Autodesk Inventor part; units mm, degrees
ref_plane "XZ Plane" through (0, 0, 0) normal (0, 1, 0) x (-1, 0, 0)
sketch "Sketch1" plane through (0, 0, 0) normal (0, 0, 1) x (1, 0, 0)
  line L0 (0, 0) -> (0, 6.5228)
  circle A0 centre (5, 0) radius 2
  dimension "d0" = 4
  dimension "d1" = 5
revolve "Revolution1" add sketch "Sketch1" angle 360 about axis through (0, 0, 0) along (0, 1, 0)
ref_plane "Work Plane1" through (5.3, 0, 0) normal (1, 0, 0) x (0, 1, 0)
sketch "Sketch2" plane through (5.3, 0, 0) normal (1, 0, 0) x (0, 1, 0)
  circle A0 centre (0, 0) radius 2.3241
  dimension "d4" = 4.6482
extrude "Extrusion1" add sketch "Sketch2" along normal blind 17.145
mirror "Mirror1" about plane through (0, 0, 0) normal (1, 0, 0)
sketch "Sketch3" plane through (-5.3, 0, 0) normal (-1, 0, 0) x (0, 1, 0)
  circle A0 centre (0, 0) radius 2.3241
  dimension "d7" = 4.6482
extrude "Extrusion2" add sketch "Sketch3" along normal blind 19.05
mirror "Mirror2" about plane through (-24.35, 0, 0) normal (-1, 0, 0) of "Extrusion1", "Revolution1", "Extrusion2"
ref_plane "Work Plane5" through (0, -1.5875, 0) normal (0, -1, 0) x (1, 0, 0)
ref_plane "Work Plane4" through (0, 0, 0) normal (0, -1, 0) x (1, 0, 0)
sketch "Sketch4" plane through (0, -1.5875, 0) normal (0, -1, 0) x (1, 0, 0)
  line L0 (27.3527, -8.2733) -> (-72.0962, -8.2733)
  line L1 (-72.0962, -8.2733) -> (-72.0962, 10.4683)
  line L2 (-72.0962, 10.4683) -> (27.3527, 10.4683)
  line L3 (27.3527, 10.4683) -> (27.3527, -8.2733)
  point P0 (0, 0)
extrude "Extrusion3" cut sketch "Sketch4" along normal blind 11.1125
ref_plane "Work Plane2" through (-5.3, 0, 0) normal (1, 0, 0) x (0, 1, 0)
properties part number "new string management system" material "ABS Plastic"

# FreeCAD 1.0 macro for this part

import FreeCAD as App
import Part
import Sketcher
from FreeCAD import Vector
Q = App.Units.Quantity


def add_polygon(sketch, points):
    """Adds a closed chain of lines whose ends are joined by coincident constraints."""
    first, n = sketch.GeometryCount, len(points)
    for a, b in zip(points, points[1:] + points[:1]):
        sketch.addGeometry(Part.LineSegment(App.Vector(*a, 0), App.Vector(*b, 0)), False)
    for i in range(n):
        sketch.addConstraint(Sketcher.Constraint("Coincident", first + i, 2, first + (i + 1) % n, 1))

doc = App.newDocument("Part")
body = doc.addObject("PartDesign::Body", "Body")

sketch1 = body.newObject("Sketcher::SketchObject", "Sketch")
sketch1.AttachmentSupport = (doc.getObject("XY_Plane"), [""])
sketch1.MapMode = "FlatFace"
sketch1.addGeometry(Part.Circle(Vector(5, 0, 0), Vector(0, 0, 1), 2), False)
sketch1.addConstraint([
    Sketcher.Constraint("PointOnObject", 0, 3, -1),
    Sketcher.Constraint("Diameter", 0, Q("4 mm")),
    Sketcher.Constraint("DistanceX", -1, 1, 0, 3, Q("5 mm")),
])
revolution = body.newObject("PartDesign::Revolution", "Revolution")
revolution.Profile = sketch1
revolution.ReferenceAxis = (sketch1, ["V_Axis"])
revolution.Angle = 360

sketch2 = body.newObject("Sketcher::SketchObject", "Sketch001")
sketch2.AttachmentSupport = (doc.getObject("YZ_Plane"), [""])
sketch2.MapMode = "FlatFace"
sketch2.AttachmentOffset = App.Placement(Vector(0, 0, 5.3), App.Rotation())
sketch2.addGeometry(Part.Circle(Vector(0, 0, 0), Vector(0, 0, 1), 2.3), False)
sketch2.addConstraint([
    Sketcher.Constraint("Coincident", 0, 3, -1, 1),
    Sketcher.Constraint("Diameter", 0, Q("0.183 in")),
])
pad1 = body.newObject("PartDesign::Pad", "Pad")
pad1.Profile = sketch2
pad1.Length = Q("0.675 in")
doc.recompute()

mirrored = body.newObject("PartDesign::Mirrored", "Mirrored")
mirrored.TransformMode = "Transform body"
mirrored.MirrorPlane = (doc.getObject("YZ_Plane"), [""])
body.Tip = mirrored

sketch3 = body.newObject("Sketcher::SketchObject", "Sketch002")
sketch3.AttachmentSupport = (doc.getObject("YZ_Plane"), [""])
sketch3.MapMode = "FlatFace"
sketch3.AttachmentOffset = App.Placement(Vector(0, 0, -5.3), App.Rotation())
sketch3.addGeometry(Part.Circle(Vector(0, 0, 0), Vector(0, 0, 1), 2.3), False)
sketch3.addConstraint([
    Sketcher.Constraint("Coincident", 0, 3, -1, 1),
    Sketcher.Constraint("Diameter", 0, Q("0.183 in")),
])
pad2 = body.newObject("PartDesign::Pad", "Pad001")
pad2.Profile = sketch3
pad2.Length = Q("0.75 in")
pad2.Reversed = True
doc.recompute()

datumplane = body.newObject("PartDesign::Plane", "DatumPlane")
datumplane.AttachmentSupport = (doc.getObject("YZ_Plane"), [""])
datumplane.MapMode = "FlatFace"
datumplane.AttachmentOffset = App.Placement(Vector(0, 0, -24.35), App.Rotation())
mirrored2 = body.newObject("PartDesign::Mirrored", "Mirrored001")
mirrored2.Originals = [pad1, revolution, pad2]
mirrored2.MirrorPlane = (datumplane, [""])
body.Tip = mirrored2

sketch4 = body.newObject("Sketcher::SketchObject", "Sketch003")
sketch4.AttachmentSupport = (doc.getObject("XZ_Plane"), [""])
sketch4.MapMode = "FlatFace"
sketch4.AttachmentOffset = App.Placement(Vector(0, 0, 0.0625 * 25.4), App.Rotation())
add_polygon(sketch4, [(-72, -8), (27, -8), (27, 10), (-72, 10)])
sketch4.addConstraint([
    Sketcher.Constraint("Horizontal", 0),
    Sketcher.Constraint("Vertical", 1),
    Sketcher.Constraint("Horizontal", 2),
    Sketcher.Constraint("Vertical", 3),
    Sketcher.Constraint("DistanceX", 0, 1, 0, 2, Q("3.9153 in")),
    Sketcher.Constraint("DistanceY", 1, 1, 1, 2, Q("18.7416 mm")),
    Sketcher.Constraint("DistanceX", -1, 1, 0, 2, Q("27.3527 mm")),
    Sketcher.Constraint("DistanceY", 0, 2, -1, 1, Q("8.2733 mm")),
])
pocket1 = body.newObject("PartDesign::Pocket", "Pocket")
pocket1.Profile = sketch4
pocket1.Length = Q("0.4375 in")
pocket1.Reversed = True

doc.recompute()
